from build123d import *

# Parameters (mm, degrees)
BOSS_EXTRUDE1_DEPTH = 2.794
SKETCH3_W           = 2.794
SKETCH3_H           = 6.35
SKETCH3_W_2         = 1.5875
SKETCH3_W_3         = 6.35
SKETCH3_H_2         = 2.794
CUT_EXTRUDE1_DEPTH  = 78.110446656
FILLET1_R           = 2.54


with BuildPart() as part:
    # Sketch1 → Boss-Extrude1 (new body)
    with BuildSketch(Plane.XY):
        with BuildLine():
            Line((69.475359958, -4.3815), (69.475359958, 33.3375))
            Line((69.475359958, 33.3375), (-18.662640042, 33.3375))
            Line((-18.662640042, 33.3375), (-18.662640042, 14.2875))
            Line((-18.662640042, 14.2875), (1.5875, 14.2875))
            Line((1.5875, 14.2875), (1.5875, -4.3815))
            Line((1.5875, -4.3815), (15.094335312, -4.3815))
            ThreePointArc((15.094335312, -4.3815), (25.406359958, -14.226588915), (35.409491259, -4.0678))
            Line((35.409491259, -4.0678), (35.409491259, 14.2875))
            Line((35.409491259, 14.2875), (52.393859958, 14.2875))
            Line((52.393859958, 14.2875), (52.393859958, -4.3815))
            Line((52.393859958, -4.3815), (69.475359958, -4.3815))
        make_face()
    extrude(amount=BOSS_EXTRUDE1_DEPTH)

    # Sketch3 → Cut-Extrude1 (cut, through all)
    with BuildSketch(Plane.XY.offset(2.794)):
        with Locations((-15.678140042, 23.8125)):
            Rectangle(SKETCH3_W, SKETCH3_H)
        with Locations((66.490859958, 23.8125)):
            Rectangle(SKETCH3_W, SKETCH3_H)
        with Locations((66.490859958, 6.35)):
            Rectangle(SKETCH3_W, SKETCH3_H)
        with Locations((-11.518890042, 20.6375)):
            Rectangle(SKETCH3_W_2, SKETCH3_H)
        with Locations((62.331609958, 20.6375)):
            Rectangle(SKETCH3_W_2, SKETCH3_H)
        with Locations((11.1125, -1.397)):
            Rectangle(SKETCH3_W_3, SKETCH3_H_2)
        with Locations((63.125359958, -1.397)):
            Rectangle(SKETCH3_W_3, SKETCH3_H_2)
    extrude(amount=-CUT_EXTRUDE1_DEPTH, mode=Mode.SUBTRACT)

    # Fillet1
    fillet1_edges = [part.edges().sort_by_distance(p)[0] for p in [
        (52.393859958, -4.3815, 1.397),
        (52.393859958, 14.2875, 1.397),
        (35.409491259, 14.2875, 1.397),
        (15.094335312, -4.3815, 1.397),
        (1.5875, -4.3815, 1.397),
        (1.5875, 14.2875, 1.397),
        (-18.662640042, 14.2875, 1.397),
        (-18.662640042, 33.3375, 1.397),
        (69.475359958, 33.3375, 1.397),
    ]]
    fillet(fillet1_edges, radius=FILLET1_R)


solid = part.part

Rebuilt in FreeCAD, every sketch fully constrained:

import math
import FreeCAD as App
import Part
import Sketcher
from FreeCAD import Vector
Q = App.Units.Quantity


def edges_at(feature, points):
    """Names of the edges that pass closest to the given points."""
    edges = feature.Shape.Edges
    near = lambda p: min(range(len(edges)), key=lambda i: edges[i].distToShape(Part.Vertex(*p))[0])
    return sorted({f"Edge{near(p) + 1}" for p in points})

doc = App.newDocument("Part")
params = doc.addObject("Spreadsheet::Sheet", "Params")
for row, (alias, value) in enumerate([
    ("sketch1_radius", "0.4 in"),
    ("sketch1_width", "3.47 in"),
    ("sketch1_height", "0.75 in"),
    ("sketch1_height2", "1.485 in"),
    ("pad1_length", "0.11 in"),
    ("sketch2_width", "0.11 in"),
    ("sketch2_width2", "0.25 in"),
    ("sketch2_width3", "0.0625 in"),
    ("fillet_radius", "0.1 in"),
], start=1):
    params.set(f"A{row}", alias)
    params.set(f"B{row}", "=" + value)
    params.setAlias(f"B{row}", alias)

body = doc.addObject("PartDesign::Body", "Body")

sketch1 = doc.addObject("Sketcher::SketchObject", "Sketch")
body.addObject(sketch1)
sketch1.AttachmentSupport = (doc.XY_Plane, [""])
sketch1.MapMode = "FlatFace"
sketch1.addGeometry([
    Part.LineSegment(Vector(69.47536, -4.3815, 0), Vector(69.47536, 33.3375, 0)),
    Part.LineSegment(Vector(69.47536, 33.3375, 0), Vector(-18.66264, 33.3375, 0)),
    Part.LineSegment(Vector(-18.66264, 33.3375, 0), Vector(-18.66264, 14.2875, 0)),
    Part.LineSegment(Vector(-18.66264, 14.2875, 0), Vector(1.5875, 14.2875, 0)),
    Part.LineSegment(Vector(1.5875, 14.2875, 0), Vector(1.5875, -4.3815, 0)),
    Part.LineSegment(Vector(1.5875, -4.3815, 0), Vector(15.094335, -4.3815, 0)),
    Part.ArcOfCircle(Part.Circle(Vector(25.249491, -4.0678, 0), Vector(0, 0, 1), 10.16), math.radians(-178.230655), math.radians(0)),
    Part.LineSegment(Vector(35.409491, -4.0678, 0), Vector(35.409491, 14.2875, 0)),
    Part.LineSegment(Vector(35.409491, 14.2875, 0), Vector(52.39386, 14.2875, 0)),
    Part.LineSegment(Vector(52.39386, 14.2875, 0), Vector(52.39386, -4.3815, 0)),
    Part.LineSegment(Vector(52.39386, -4.3815, 0), Vector(69.47536, -4.3815, 0)),
], False)
sketch1.addConstraint([
    Sketcher.Constraint("Coincident", 0, 2, 1, 1),
    Sketcher.Constraint("Coincident", 1, 2, 2, 1),
    Sketcher.Constraint("Coincident", 2, 2, 3, 1),
    Sketcher.Constraint("Coincident", 3, 2, 4, 1),
    Sketcher.Constraint("Coincident", 4, 2, 5, 1),
    Sketcher.Constraint("Coincident", 5, 2, 6, 1),
    Sketcher.Constraint("Tangent", 6, 2, 7, 1),
    Sketcher.Constraint("Coincident", 7, 2, 8, 1),
    Sketcher.Constraint("Coincident", 8, 2, 9, 1),
    Sketcher.Constraint("Coincident", 9, 2, 10, 1),
    Sketcher.Constraint("Coincident", 10, 2, 0, 1),
    Sketcher.Constraint("Vertical", 0),
    Sketcher.Constraint("Horizontal", 1),
    Sketcher.Constraint("Vertical", 2),
    Sketcher.Constraint("Horizontal", 3),
    Sketcher.Constraint("Vertical", 4),
    Sketcher.Constraint("Horizontal", 5),
    Sketcher.Constraint("Vertical", 7),
    Sketcher.Constraint("Horizontal", 8),
    Sketcher.Constraint("Vertical", 9),
    Sketcher.Constraint("Horizontal", 10),
    Sketcher.Constraint("Horizontal", 3, 2, 7, 2),
    Sketcher.Constraint("Horizontal", 5, 2, 9, 2),
    Sketcher.Constraint("Radius", 6, Q("0.4 in")),
    Sketcher.Constraint("DistanceX", 1, 2, 1, 1, Q("3.47 in")),
    Sketcher.Constraint("DistanceY", 2, 2, 2, 1, Q("0.75 in")),
    Sketcher.Constraint("DistanceY", 0, 1, 0, 2, Q("1.485 in")),
    Sketcher.Constraint("DistanceX", 10, 1, 10, 2, Q("0.6725 in")),
    Sketcher.Constraint("DistanceY", -1, 1, 0, 2, Q("1.3125 in")),
    Sketcher.Constraint("DistanceX", -1, 1, 3, 2, Q("0.0625 in")),
    Sketcher.Constraint("DistanceY", 7, 1, 7, 2, 18.3553),
    Sketcher.Constraint("DistanceX", 3, 1, 3, 2, 20.25014),
    Sketcher.Constraint("DistanceX", 8, 1, 8, 2, 16.984369),
])
sketch1.setExpression("Constraints[23]", "Params.sketch1_radius")
sketch1.setExpression("Constraints[24]", "Params.sketch1_width")
sketch1.setExpression("Constraints[25]", "Params.sketch1_height")
sketch1.setExpression("Constraints[26]", "Params.sketch1_height2")
pad1 = doc.addObject("PartDesign::Pad", "Pad")
body.addObject(pad1)
pad1.Profile = sketch1
pad1.setExpression("Length", "Params.pad1_length")

sketch2 = doc.addObject("Sketcher::SketchObject", "Sketch001")
body.addObject(sketch2)
sketch2.AttachmentSupport = (doc.XY_Plane, [""])
sketch2.MapMode = "FlatFace"
sketch2.AttachmentOffset = App.Placement(Vector(0, 0, 0.11 * 25.4), App.Rotation())
sketch2.addGeometry([
    Part.LineSegment(Vector(-17.07514, 26.9875, 0), Vector(-17.07514, 20.6375, 0)),
    Part.LineSegment(Vector(-17.07514, 20.6375, 0), Vector(-14.28114, 20.6375, 0)),
    Part.LineSegment(Vector(-14.28114, 20.6375, 0), Vector(-14.28114, 26.9875, 0)),
    Part.LineSegment(Vector(-14.28114, 26.9875, 0), Vector(-17.07514, 26.9875, 0)),
    Part.LineSegment(Vector(65.09386, 26.9875, 0), Vector(65.09386, 20.6375, 0)),
    Part.LineSegment(Vector(65.09386, 20.6375, 0), Vector(67.88786, 20.6375, 0)),
    Part.LineSegment(Vector(67.88786, 20.6375, 0), Vector(67.88786, 26.9875, 0)),
    Part.LineSegment(Vector(67.88786, 26.9875, 0), Vector(65.09386, 26.9875, 0)),
    Part.LineSegment(Vector(65.09386, 9.525, 0), Vector(65.09386, 3.175, 0)),
    Part.LineSegment(Vector(65.09386, 3.175, 0), Vector(67.88786, 3.175, 0)),
    Part.LineSegment(Vector(67.88786, 3.175, 0), Vector(67.88786, 9.525, 0)),
    Part.LineSegment(Vector(67.88786, 9.525, 0), Vector(65.09386, 9.525, 0)),
    Part.LineSegment(Vector(-12.31264, 23.8125, 0), Vector(-12.31264, 17.4625, 0)),
    Part.LineSegment(Vector(-12.31264, 17.4625, 0), Vector(-10.72514, 17.4625, 0)),
    Part.LineSegment(Vector(-10.72514, 17.4625, 0), Vector(-10.72514, 23.8125, 0)),
    Part.LineSegment(Vector(-10.72514, 23.8125, 0), Vector(-12.31264, 23.8125, 0)),
    Part.LineSegment(Vector(61.53786, 23.8125, 0), Vector(61.53786, 17.4625, 0)),
    Part.LineSegment(Vector(61.53786, 17.4625, 0), Vector(63.12536, 17.4625, 0)),
    Part.LineSegment(Vector(63.12536, 17.4625, 0), Vector(63.12536, 23.8125, 0)),
    Part.LineSegment(Vector(63.12536, 23.8125, 0), Vector(61.53786, 23.8125, 0)),
    Part.LineSegment(Vector(7.9375, 0, 0), Vector(7.9375, -2.794, 0)),
    Part.LineSegment(Vector(7.9375, -2.794, 0), Vector(14.2875, -2.794, 0)),
    Part.LineSegment(Vector(14.2875, -2.794, 0), Vector(14.2875, 0, 0)),
    Part.LineSegment(Vector(14.2875, 0, 0), Vector(7.9375, 0, 0)),
    Part.LineSegment(Vector(59.95036, 0, 0), Vector(59.95036, -2.794, 0)),
    Part.LineSegment(Vector(59.95036, -2.794, 0), Vector(66.30036, -2.794, 0)),
    Part.LineSegment(Vector(66.30036, -2.794, 0), Vector(66.30036, 0, 0)),
    Part.LineSegment(Vector(66.30036, 0, 0), Vector(59.95036, 0, 0)),
], False)
sketch2.addConstraint([
    Sketcher.Constraint("Coincident", 0, 2, 1, 1),
    Sketcher.Constraint("Coincident", 1, 2, 2, 1),
    Sketcher.Constraint("Coincident", 2, 2, 3, 1),
    Sketcher.Constraint("Coincident", 3, 2, 0, 1),
    Sketcher.Constraint("Coincident", 4, 2, 5, 1),
    Sketcher.Constraint("Coincident", 5, 2, 6, 1),
    Sketcher.Constraint("Coincident", 6, 2, 7, 1),
    Sketcher.Constraint("Coincident", 7, 2, 4, 1),
    Sketcher.Constraint("Coincident", 8, 2, 9, 1),
    Sketcher.Constraint("Coincident", 9, 2, 10, 1),
    Sketcher.Constraint("Coincident", 10, 2, 11, 1),
    Sketcher.Constraint("Coincident", 11, 2, 8, 1),
    Sketcher.Constraint("Coincident", 12, 2, 13, 1),
    Sketcher.Constraint("Coincident", 13, 2, 14, 1),
    Sketcher.Constraint("Coincident", 14, 2, 15, 1),
    Sketcher.Constraint("Coincident", 15, 2, 12, 1),
    Sketcher.Constraint("Coincident", 16, 2, 17, 1),
    Sketcher.Constraint("Coincident", 17, 2, 18, 1),
    Sketcher.Constraint("Coincident", 18, 2, 19, 1),
    Sketcher.Constraint("Coincident", 19, 2, 16, 1),
    Sketcher.Constraint("Coincident", 20, 2, 21, 1),
    Sketcher.Constraint("Coincident", 21, 2, 22, 1),
    Sketcher.Constraint("Coincident", 22, 2, 23, 1),
    Sketcher.Constraint("Coincident", 23, 2, 20, 1),
    Sketcher.Constraint("Coincident", 24, 2, 25, 1),
    Sketcher.Constraint("Coincident", 25, 2, 26, 1),
    Sketcher.Constraint("Coincident", 26, 2, 27, 1),
    Sketcher.Constraint("Coincident", 27, 2, 24, 1),
    Sketcher.Constraint("Vertical", 0),
    Sketcher.Constraint("Horizontal", 1),
    Sketcher.Constraint("Vertical", 2),
    Sketcher.Constraint("Horizontal", 3),
    Sketcher.Constraint("Vertical", 4),
    Sketcher.Constraint("Horizontal", 5),
    Sketcher.Constraint("Vertical", 6),
    Sketcher.Constraint("Horizontal", 7),
    Sketcher.Constraint("Vertical", 8),
    Sketcher.Constraint("Horizontal", 9),
    Sketcher.Constraint("Vertical", 10),
    Sketcher.Constraint("Horizontal", 11),
    Sketcher.Constraint("Vertical", 12),
    Sketcher.Constraint("Horizontal", 13),
    Sketcher.Constraint("Vertical", 14),
    Sketcher.Constraint("Horizontal", 15),
    Sketcher.Constraint("Vertical", 16),
    Sketcher.Constraint("Horizontal", 17),
    Sketcher.Constraint("Vertical", 18),
    Sketcher.Constraint("Horizontal", 19),
    Sketcher.Constraint("Vertical", 20),
    Sketcher.Constraint("Horizontal", 21),
    Sketcher.Constraint("Vertical", 22),
    Sketcher.Constraint("Horizontal", 23),
    Sketcher.Constraint("Vertical", 24),
    Sketcher.Constraint("Horizontal", 25),
    Sketcher.Constraint("Vertical", 26),
    Sketcher.Constraint("Horizontal", 27),
    Sketcher.Constraint("PointOnObject", 22, 2, -1),
    Sketcher.Constraint("PointOnObject", 26, 2, -1),
    Sketcher.Constraint("Horizontal", 1, 2, 4, 2),
    Sketcher.Constraint("Horizontal", 3, 2, 6, 2),
    Sketcher.Constraint("Horizontal", 13, 2, 16, 2),
    Sketcher.Constraint("Horizontal", 15, 2, 18, 2),
    Sketcher.Constraint("Horizontal", 21, 2, 24, 2),
    Sketcher.Constraint("Vertical", 7, 2, 8, 2),
    Sketcher.Constraint("Vertical", 6, 2, 9, 2),
    Sketcher.Constraint("Equal", 3, 5),
    Sketcher.Constraint("Equal", 15, 17),
    Sketcher.Constraint("Equal", 23, 25),
    Sketcher.Constraint("Equal", 27, 0),
    Sketcher.Constraint("Equal", 6, 8),
    Sketcher.Constraint("Equal", 10, 12),
    Sketcher.Constraint("Equal", 11, 20),
    Sketcher.Constraint("DistanceX", 1, 1, 1, 2, Q("0.11 in")),
    Sketcher.Constraint("DistanceX", 21, 1, 21, 2, Q("0.25 in")),
    Sketcher.Constraint("DistanceX", 13, 1, 13, 2, Q("0.0625 in")),
    Sketcher.Constraint("DistanceX", 1, 2, 13, 2, Q("0.14 in")),
    Sketcher.Constraint("DistanceX", 16, 2, 4, 2, Q("0.14 in")),
    Sketcher.Constraint("DistanceY", -1, 1, 0, 2, Q("0.8125 in")),
    Sketcher.Constraint("DistanceY", -1, 1, 8, 2, Q("0.125 in")),
    Sketcher.Constraint("DistanceY", -1, 1, 12, 2, Q("0.6875 in")),
    Sketcher.Constraint("DistanceX", -1, 1, 20, 2, Q("0.3125 in")),
    Sketcher.Constraint("DistanceX", 1, 2, 4, 2, Q("3.125 in")),
    Sketcher.Constraint("DistanceX", 24, 2, 9, 2, Q("0.3125 in")),
    Sketcher.Constraint("DistanceX", 0, 2, -1, 1, 17.07514),
])
sketch2.setExpression("Constraints[72]", "Params.sketch2_width")
sketch2.setExpression("Constraints[73]", "Params.sketch2_width2")
sketch2.setExpression("Constraints[74]", "Params.sketch2_width3")
pocket1 = doc.addObject("PartDesign::Pocket", "Pocket")
body.addObject(pocket1)
pocket1.Profile = sketch2
pocket1.Type = "ThroughAll"
doc.recompute()

fillet = doc.addObject("PartDesign::Fillet", "Fillet")
body.addObject(fillet)
fillet.Base = (pocket1, edges_at(pocket1, [
    (52.394, -4.381, 1.397),
    (52.394, 14.287, 1.397),
    (35.409, 14.287, 1.397),
    (15.094, -4.381, 1.397),
    (1.587, -4.381, 1.397),
    (1.587, 14.287, 1.397),
    (-18.663, 14.287, 1.397),
    (-18.663, 33.337, 1.397),
    (69.475, 33.337, 1.397),
]))
fillet.setExpression("Radius", "Params.fillet_radius")

doc.recompute()
